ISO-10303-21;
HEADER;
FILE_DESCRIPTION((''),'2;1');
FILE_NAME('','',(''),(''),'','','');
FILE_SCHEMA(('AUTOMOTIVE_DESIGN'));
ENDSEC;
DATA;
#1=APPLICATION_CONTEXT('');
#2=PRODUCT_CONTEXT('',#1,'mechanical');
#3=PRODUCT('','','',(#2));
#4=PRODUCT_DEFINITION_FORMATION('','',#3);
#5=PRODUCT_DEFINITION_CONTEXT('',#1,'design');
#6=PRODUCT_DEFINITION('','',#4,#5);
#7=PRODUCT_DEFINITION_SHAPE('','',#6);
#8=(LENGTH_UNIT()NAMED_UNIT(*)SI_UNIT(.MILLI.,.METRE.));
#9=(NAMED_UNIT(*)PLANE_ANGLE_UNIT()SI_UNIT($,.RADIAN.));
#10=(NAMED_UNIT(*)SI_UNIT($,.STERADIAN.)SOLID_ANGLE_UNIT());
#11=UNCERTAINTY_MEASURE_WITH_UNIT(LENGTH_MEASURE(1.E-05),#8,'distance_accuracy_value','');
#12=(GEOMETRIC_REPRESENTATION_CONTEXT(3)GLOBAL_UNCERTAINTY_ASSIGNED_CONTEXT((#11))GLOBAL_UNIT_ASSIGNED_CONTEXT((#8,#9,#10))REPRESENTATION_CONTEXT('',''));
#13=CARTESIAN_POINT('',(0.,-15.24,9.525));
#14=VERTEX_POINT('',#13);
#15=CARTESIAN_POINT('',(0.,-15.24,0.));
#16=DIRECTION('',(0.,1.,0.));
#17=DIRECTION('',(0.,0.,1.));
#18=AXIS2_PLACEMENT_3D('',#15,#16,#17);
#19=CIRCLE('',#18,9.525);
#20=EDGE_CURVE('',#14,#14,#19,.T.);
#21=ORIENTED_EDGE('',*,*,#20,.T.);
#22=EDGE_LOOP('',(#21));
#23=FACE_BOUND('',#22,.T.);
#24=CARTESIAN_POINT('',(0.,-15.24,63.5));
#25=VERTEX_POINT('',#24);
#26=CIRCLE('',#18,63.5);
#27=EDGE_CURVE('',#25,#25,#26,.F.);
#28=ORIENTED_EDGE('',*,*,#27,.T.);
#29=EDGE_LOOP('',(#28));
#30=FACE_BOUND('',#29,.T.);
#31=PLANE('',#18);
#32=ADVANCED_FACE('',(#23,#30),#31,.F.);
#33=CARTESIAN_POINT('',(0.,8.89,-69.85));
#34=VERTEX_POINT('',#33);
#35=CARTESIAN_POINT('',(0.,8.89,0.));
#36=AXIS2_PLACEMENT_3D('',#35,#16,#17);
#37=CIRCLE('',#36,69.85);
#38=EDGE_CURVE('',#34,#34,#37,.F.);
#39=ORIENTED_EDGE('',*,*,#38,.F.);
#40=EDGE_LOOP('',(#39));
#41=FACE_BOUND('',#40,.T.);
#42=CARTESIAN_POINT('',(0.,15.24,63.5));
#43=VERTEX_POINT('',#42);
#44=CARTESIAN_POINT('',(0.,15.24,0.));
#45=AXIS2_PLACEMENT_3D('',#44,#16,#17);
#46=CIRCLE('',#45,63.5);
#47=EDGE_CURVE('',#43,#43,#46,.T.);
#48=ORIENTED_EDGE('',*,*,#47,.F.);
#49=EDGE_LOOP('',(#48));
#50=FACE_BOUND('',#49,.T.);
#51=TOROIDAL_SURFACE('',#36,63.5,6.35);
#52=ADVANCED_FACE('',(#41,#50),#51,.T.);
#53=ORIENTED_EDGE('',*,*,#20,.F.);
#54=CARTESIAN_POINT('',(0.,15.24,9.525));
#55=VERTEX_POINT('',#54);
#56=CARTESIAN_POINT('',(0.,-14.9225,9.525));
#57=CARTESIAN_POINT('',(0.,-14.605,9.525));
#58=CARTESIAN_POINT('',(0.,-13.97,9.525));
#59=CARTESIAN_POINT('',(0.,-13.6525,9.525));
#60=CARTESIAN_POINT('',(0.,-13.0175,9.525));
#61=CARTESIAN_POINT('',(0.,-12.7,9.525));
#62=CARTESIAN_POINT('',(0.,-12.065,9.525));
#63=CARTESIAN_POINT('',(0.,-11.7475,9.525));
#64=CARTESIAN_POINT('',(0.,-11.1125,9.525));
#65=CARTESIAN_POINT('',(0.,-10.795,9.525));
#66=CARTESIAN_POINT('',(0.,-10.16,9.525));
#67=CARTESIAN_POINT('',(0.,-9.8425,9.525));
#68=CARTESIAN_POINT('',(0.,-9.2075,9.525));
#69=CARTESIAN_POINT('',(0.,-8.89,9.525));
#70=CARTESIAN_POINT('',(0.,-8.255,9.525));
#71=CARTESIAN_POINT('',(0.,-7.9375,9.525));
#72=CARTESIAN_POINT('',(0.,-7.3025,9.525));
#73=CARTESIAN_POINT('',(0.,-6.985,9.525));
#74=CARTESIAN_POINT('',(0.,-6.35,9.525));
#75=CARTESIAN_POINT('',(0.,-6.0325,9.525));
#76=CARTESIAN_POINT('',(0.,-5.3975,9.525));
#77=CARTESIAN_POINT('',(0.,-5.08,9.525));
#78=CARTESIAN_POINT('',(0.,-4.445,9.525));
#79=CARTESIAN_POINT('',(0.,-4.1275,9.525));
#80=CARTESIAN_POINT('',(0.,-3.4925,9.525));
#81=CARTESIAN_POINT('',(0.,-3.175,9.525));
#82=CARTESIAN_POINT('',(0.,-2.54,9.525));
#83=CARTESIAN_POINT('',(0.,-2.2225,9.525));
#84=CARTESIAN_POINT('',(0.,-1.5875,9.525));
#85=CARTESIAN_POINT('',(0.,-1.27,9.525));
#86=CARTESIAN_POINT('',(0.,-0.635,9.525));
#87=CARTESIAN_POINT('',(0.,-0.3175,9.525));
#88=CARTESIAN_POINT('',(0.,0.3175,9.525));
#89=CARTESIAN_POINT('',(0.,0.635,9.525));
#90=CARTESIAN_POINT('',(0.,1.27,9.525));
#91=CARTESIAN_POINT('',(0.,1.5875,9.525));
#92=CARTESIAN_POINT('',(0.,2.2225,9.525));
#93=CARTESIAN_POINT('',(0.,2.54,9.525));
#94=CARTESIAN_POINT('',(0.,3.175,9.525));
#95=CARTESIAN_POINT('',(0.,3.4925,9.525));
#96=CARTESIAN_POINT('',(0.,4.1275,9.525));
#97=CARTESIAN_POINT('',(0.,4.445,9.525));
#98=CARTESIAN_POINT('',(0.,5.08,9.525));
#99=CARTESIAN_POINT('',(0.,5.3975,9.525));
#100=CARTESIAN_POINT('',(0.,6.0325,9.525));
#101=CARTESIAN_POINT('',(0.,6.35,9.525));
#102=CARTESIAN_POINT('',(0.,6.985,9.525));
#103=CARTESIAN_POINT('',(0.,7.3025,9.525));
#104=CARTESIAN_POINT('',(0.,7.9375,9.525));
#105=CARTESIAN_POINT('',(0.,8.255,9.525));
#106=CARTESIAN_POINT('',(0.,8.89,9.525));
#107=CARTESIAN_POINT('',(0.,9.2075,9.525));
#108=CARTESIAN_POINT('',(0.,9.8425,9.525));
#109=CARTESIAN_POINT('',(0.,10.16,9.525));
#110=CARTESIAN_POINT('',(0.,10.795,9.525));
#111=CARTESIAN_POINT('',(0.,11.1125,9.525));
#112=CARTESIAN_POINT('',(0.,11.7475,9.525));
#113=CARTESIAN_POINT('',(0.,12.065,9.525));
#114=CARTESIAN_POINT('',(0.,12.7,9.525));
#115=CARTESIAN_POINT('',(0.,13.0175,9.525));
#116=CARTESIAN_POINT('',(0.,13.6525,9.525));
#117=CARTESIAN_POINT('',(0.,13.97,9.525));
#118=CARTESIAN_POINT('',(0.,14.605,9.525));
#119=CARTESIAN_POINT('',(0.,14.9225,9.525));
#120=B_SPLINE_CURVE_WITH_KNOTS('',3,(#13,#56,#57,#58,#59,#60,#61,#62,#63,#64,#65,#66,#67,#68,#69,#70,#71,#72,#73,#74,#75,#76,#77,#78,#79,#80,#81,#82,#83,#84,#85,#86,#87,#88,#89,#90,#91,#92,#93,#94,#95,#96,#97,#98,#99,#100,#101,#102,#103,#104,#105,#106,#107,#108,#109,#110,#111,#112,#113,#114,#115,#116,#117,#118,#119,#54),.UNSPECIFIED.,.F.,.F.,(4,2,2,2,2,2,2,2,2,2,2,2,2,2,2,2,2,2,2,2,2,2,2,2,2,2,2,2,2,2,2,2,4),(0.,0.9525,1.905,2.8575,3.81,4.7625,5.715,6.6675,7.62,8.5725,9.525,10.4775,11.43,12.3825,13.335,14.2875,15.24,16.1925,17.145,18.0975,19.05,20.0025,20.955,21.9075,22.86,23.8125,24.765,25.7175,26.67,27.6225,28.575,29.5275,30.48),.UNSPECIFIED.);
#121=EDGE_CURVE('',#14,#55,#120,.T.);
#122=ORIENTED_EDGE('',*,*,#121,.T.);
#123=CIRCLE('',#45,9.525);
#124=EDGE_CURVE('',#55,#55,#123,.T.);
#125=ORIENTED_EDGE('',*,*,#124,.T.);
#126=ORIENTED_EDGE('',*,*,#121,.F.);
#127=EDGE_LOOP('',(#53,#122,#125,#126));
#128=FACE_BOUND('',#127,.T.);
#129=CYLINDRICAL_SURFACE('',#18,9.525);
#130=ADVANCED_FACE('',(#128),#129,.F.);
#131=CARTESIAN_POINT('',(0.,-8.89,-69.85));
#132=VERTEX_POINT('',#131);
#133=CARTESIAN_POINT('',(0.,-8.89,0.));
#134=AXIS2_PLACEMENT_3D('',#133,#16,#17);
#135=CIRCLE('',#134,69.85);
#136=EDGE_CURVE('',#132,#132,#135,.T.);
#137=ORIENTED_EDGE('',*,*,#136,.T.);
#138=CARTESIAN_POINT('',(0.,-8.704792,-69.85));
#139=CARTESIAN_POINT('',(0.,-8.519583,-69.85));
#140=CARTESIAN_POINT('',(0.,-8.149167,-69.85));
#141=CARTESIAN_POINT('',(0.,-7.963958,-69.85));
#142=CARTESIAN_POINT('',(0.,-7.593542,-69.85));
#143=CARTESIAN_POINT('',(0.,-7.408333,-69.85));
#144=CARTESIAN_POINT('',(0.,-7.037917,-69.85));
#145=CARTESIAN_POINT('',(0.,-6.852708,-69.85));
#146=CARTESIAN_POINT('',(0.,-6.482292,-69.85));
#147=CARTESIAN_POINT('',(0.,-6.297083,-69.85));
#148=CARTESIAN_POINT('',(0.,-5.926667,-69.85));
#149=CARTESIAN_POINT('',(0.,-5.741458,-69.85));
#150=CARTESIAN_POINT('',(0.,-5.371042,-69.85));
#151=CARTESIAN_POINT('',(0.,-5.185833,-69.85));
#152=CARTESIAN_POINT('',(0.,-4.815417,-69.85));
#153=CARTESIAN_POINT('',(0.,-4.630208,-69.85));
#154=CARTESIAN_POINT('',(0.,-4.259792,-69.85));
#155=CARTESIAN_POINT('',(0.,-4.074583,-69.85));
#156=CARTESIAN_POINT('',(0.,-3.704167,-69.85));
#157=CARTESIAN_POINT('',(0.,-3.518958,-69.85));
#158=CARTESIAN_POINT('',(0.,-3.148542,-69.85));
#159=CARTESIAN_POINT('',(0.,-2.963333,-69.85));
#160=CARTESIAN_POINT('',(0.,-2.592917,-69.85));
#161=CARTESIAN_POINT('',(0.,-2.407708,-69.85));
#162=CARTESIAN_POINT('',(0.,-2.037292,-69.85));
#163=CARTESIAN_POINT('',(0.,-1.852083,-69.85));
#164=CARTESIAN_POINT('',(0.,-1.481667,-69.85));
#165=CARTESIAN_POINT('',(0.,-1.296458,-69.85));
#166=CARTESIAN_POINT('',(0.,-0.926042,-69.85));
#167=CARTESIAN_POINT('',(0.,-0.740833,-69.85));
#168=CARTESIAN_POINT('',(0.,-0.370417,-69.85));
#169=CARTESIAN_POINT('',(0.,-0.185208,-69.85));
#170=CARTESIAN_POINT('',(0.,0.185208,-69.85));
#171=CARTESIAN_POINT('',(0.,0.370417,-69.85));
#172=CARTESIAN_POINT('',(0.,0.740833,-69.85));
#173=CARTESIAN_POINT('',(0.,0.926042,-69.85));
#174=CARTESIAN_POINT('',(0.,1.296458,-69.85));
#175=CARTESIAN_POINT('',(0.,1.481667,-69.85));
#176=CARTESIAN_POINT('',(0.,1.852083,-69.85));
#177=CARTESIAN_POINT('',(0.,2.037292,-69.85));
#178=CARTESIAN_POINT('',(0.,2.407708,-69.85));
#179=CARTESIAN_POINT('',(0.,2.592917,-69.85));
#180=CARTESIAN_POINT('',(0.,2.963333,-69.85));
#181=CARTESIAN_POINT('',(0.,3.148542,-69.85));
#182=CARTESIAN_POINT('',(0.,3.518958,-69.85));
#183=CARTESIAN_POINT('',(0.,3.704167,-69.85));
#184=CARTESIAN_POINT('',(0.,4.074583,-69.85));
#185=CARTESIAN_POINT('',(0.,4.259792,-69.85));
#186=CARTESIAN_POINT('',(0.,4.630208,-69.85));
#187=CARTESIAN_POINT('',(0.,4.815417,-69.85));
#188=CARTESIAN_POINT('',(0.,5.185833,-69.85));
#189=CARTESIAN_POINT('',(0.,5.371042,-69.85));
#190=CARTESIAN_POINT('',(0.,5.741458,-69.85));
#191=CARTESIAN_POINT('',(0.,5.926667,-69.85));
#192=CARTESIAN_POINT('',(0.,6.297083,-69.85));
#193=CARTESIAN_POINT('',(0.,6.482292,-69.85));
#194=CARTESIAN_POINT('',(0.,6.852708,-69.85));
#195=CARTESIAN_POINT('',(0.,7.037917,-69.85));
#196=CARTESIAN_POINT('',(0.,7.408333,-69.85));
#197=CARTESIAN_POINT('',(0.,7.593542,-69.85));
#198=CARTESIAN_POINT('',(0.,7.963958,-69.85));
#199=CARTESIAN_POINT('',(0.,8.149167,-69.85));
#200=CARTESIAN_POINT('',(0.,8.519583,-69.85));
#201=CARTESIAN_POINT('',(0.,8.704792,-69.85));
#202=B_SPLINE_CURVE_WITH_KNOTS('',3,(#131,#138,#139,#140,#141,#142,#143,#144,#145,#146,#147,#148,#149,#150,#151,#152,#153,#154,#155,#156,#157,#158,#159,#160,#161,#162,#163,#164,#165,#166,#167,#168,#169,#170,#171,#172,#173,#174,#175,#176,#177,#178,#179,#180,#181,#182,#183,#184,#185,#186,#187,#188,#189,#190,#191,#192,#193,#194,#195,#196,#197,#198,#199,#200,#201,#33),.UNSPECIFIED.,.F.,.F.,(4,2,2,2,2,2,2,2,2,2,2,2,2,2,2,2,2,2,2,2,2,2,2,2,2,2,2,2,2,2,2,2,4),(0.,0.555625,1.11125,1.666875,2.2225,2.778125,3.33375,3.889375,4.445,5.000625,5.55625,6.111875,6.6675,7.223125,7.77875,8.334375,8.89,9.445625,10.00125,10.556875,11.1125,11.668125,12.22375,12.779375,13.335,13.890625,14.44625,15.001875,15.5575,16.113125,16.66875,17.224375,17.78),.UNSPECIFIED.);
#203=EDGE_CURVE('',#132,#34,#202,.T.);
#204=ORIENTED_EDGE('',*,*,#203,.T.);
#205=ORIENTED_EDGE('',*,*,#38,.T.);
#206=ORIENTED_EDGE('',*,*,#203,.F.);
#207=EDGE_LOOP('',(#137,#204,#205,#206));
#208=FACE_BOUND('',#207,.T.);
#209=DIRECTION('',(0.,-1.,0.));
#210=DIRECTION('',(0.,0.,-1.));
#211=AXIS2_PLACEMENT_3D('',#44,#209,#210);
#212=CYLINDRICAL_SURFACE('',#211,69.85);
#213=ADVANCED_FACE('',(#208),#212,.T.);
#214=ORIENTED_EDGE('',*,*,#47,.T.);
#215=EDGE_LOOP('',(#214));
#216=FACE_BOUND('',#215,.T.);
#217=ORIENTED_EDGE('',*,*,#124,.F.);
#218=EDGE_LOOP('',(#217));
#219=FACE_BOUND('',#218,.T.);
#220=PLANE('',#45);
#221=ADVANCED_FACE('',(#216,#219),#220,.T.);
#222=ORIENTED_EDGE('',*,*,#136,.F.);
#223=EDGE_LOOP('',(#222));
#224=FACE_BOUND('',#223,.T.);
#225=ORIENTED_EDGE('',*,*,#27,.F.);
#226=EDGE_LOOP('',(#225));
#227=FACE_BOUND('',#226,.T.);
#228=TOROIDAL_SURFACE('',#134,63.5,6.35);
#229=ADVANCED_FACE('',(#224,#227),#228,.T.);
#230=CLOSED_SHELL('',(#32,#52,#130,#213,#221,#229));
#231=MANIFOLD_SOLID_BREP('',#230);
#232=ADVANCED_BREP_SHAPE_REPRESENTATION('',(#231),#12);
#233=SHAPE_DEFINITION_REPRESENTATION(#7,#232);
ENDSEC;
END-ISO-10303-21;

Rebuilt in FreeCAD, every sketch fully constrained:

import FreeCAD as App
import Part
import Sketcher
from FreeCAD import Vector
Q = App.Units.Quantity


def edges_at(feature, points):
    """Names of the edges that pass closest to the given points."""
    edges = feature.Shape.Edges
    near = lambda p: min(range(len(edges)), key=lambda i: edges[i].distToShape(Part.Vertex(*p))[0])
    return sorted({f"Edge{near(p) + 1}" for p in points})

doc = App.newDocument("Part")
params = doc.addObject("Spreadsheet::Sheet", "Params")
for row, (alias, value) in enumerate([
    ("sketch1_diameter", "5.5 in"),
    ("pad1_length", "1.2 in"),
    ("sketch2_diameter", "0.75 in"),
    ("pocket1_length", "1.2 in"),
    ("fillet_radius", "0.25 in"),
], start=1):
    params.set(f"A{row}", alias)
    params.set(f"B{row}", "=" + value)
    params.setAlias(f"B{row}", alias)

body = doc.addObject("PartDesign::Body", "Body")

# Sketch on XZ plane
sketch1 = body.newObject("Sketcher::SketchObject", "Sketch")
sketch1.AttachmentSupport = (doc.getObject("XZ_Plane"), [""])
sketch1.MapMode = "FlatFace"
sketch1.addGeometry(Part.Circle(Vector(0, 0, 0), Vector(0, 0, 1), 70), False)
sketch1.addConstraint([
    Sketcher.Constraint("Coincident", 0, 3, -1, 1),
    Sketcher.Constraint("Diameter", 0, Q("5.5 in")),
])
sketch1.setExpression("Constraints[1]", "Params.sketch1_diameter")
pad1 = body.newObject("PartDesign::Pad", "Pad")
pad1.Profile = sketch1
pad1.setExpression("Length", "Params.pad1_length")
pad1.Midplane = True

# Sketch on XZ plane
sketch2 = body.newObject("Sketcher::SketchObject", "Sketch001")
sketch2.AttachmentSupport = (doc.getObject("XZ_Plane"), [""])
sketch2.MapMode = "FlatFace"
sketch2.AttachmentOffset = App.Placement(Vector(0, 0, -0.6 * 25.4), App.Rotation())
sketch2.addGeometry(Part.Circle(Vector(0, 0, 0), Vector(0, 0, 1), 10), False)
sketch2.addConstraint([
    Sketcher.Constraint("Coincident", 0, 3, -1, 1),
    Sketcher.Constraint("Diameter", 0, Q("0.75 in")),
])
sketch2.setExpression("Constraints[1]", "Params.sketch2_diameter")
pocket1 = body.newObject("PartDesign::Pocket", "Pocket")
pocket1.Profile = sketch2
pocket1.setExpression("Length", "Params.pocket1_length")
pocket1.Reversed = True
doc.recompute()

fillet = body.newObject("PartDesign::Fillet", "Fillet")
fillet.Base = (pocket1, edges_at(pocket1, [(0, -15.24, 69.85), (0, 15.24, 69.85)]))
fillet.setExpression("Radius", "Params.fillet_radius")

doc.recompute()
